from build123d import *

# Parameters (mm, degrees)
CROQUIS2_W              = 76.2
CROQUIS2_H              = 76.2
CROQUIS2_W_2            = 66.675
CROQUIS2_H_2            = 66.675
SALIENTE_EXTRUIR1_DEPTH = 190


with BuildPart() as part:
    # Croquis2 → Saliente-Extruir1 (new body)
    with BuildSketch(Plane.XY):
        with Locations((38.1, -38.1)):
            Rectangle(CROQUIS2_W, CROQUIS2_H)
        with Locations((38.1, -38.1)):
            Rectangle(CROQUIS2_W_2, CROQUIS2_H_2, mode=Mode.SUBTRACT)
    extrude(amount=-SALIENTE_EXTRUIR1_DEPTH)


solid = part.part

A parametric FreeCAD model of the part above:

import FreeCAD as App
import Part
import Sketcher

V = App.Vector
Q = App.Units.Quantity

doc = App.newDocument("Part")
params = doc.addObject("Spreadsheet::Sheet", "Params")
for row, (alias, value) in enumerate([
    ("sketch1_width", "3 in"),
    ("sketch1_width2", "2.625 in"),
    ("pad1_length", "190 mm"),
], start=1):
    params.set(f"A{row}", alias)
    params.set(f"B{row}", "=" + value)
    params.setAlias(f"B{row}", alias)

body = doc.addObject("PartDesign::Body", "Body")

# Sketch on XY plane
sketch1 = body.newObject("Sketcher::SketchObject", "Sketch")
sketch1.AttachmentSupport = (doc.getObject("XY_Plane"), [""])
sketch1.MapMode = "FlatFace"
sketch1.addGeometry([
    Part.LineSegment(V(0, 0, 0), V(0, -76, 0)),  # 0
    Part.LineSegment(V(0, -76, 0), V(76, -76, 0)),  # 1
    Part.LineSegment(V(76, -76, 0), V(76, 0, 0)),  # 2
    Part.LineSegment(V(76, 0, 0), V(0, 0, 0)),  # 3
    Part.LineSegment(V(71, -71, 0), V(5, -71, 0)),  # 4
    Part.LineSegment(V(5, -71, 0), V(5, -5, 0)),  # 5
    Part.LineSegment(V(5, -5, 0), V(71, -5, 0)),  # 6
    Part.LineSegment(V(71, -5, 0), V(71, -71, 0)),  # 7
], False)
sketch1.addConstraint([
    Sketcher.Constraint("Coincident", 0, 2, 1, 1),
    Sketcher.Constraint("Coincident", 1, 2, 2, 1),
    Sketcher.Constraint("Coincident", 2, 2, 3, 1),
    Sketcher.Constraint("Coincident", 3, 2, 0, 1),
    Sketcher.Constraint("Coincident", 4, 2, 5, 1),
    Sketcher.Constraint("Coincident", 5, 2, 6, 1),
    Sketcher.Constraint("Coincident", 6, 2, 7, 1),
    Sketcher.Constraint("Coincident", 7, 2, 4, 1),
    Sketcher.Constraint("Vertical", 0),
    Sketcher.Constraint("Horizontal", 1),
    Sketcher.Constraint("Vertical", 2),
    Sketcher.Constraint("Horizontal", 3),
    Sketcher.Constraint("Horizontal", 4),
    Sketcher.Constraint("Vertical", 5),
    Sketcher.Constraint("Horizontal", 6),
    Sketcher.Constraint("Vertical", 7),
    Sketcher.Constraint("Coincident", 3, 2, -1, 1),
    Sketcher.Constraint("Equal", 3, 0),
    Sketcher.Constraint("Equal", 6, 5),
    Sketcher.Constraint("DistanceX", 1, 1, 1, 2, Q("3 in")),
    Sketcher.Constraint("DistanceX", 4, 2, 4, 1, Q("2.625 in")),
    Sketcher.Constraint("DistanceX", -1, 1, 4, 2, Q("0.1875 in")),
    Sketcher.Constraint("DistanceY", 4, 2, -1, 1, Q("2.8125 in")),
])
sketch1.setExpression("Constraints[19]", "Params.sketch1_width")
sketch1.setExpression("Constraints[20]", "Params.sketch1_width2")
pad1 = body.newObject("PartDesign::Pad", "Pad")
pad1.Profile = sketch1
pad1.setExpression("Length", "Params.pad1_length")
pad1.Reversed = True

doc.recompute()
